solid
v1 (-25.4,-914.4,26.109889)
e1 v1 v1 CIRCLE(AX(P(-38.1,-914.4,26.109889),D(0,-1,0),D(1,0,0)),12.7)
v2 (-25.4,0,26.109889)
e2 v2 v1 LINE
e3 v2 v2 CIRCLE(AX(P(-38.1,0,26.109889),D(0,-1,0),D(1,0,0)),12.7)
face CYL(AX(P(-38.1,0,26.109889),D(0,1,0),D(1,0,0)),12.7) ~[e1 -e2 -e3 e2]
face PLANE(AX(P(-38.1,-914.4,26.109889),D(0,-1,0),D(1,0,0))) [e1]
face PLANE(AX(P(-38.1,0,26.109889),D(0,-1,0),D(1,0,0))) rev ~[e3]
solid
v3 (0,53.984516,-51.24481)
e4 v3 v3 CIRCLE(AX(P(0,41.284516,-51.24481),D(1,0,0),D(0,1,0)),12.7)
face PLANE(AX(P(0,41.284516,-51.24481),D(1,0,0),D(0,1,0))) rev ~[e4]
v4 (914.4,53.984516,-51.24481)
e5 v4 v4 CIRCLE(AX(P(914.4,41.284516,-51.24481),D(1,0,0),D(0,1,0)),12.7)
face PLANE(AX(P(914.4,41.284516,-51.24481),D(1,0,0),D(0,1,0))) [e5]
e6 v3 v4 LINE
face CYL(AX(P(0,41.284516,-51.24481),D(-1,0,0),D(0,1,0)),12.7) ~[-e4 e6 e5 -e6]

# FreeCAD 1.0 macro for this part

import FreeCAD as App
import Part
import Sketcher
Q = App.Units.Quantity

doc = App.newDocument("Part")
body = doc.addObject("PartDesign::Body", "Body")

# Sketch on XZ plane
sketch1 = body.newObject("Sketcher::SketchObject", "Sketch")
sketch1.AttachmentSupport = (doc.getObject("XZ_Plane"), [""])
sketch1.MapMode = "FlatFace"
sketch1.addGeometry(Part.Circle(App.Vector(-38, 26, 0), App.Vector(0, 0, 1), 13), False)
sketch1.addConstraint([
    Sketcher.Constraint("Diameter", 0, Q("1 in")),
    Sketcher.Constraint("DistanceX", 0, 3, -1, 1, Q("1.5 in")),
    Sketcher.Constraint("DistanceY", -1, 1, 0, 3, Q("26.109889 mm")),
])
pad1 = body.newObject("PartDesign::Pad", "Pad")
pad1.Profile = sketch1
pad1.Length = Q("36 in")
body2 = doc.addObject("PartDesign::Body", "Body001")

# Sketch on YZ plane
sketch2 = body2.newObject("Sketcher::SketchObject", "Sketch001")
sketch2.AttachmentSupport = (doc.getObject("YZ_Plane001"), [""])
sketch2.MapMode = "FlatFace"
sketch2.addGeometry(Part.Circle(App.Vector(41, -51, 0), App.Vector(0, 0, 1), 13), False)
sketch2.addConstraint([
    Sketcher.Constraint("Diameter", 0, Q("1 in")),
    Sketcher.Constraint("DistanceY", 0, 3, -1, 1, Q("51.24481 mm")),
    Sketcher.Constraint("DistanceX", -1, 1, 0, 3, Q("41.284516 mm")),
])
pad2 = body2.newObject("PartDesign::Pad", "Pad001")
pad2.Profile = sketch2
pad2.Length = Q("36 in")

doc.recompute()
